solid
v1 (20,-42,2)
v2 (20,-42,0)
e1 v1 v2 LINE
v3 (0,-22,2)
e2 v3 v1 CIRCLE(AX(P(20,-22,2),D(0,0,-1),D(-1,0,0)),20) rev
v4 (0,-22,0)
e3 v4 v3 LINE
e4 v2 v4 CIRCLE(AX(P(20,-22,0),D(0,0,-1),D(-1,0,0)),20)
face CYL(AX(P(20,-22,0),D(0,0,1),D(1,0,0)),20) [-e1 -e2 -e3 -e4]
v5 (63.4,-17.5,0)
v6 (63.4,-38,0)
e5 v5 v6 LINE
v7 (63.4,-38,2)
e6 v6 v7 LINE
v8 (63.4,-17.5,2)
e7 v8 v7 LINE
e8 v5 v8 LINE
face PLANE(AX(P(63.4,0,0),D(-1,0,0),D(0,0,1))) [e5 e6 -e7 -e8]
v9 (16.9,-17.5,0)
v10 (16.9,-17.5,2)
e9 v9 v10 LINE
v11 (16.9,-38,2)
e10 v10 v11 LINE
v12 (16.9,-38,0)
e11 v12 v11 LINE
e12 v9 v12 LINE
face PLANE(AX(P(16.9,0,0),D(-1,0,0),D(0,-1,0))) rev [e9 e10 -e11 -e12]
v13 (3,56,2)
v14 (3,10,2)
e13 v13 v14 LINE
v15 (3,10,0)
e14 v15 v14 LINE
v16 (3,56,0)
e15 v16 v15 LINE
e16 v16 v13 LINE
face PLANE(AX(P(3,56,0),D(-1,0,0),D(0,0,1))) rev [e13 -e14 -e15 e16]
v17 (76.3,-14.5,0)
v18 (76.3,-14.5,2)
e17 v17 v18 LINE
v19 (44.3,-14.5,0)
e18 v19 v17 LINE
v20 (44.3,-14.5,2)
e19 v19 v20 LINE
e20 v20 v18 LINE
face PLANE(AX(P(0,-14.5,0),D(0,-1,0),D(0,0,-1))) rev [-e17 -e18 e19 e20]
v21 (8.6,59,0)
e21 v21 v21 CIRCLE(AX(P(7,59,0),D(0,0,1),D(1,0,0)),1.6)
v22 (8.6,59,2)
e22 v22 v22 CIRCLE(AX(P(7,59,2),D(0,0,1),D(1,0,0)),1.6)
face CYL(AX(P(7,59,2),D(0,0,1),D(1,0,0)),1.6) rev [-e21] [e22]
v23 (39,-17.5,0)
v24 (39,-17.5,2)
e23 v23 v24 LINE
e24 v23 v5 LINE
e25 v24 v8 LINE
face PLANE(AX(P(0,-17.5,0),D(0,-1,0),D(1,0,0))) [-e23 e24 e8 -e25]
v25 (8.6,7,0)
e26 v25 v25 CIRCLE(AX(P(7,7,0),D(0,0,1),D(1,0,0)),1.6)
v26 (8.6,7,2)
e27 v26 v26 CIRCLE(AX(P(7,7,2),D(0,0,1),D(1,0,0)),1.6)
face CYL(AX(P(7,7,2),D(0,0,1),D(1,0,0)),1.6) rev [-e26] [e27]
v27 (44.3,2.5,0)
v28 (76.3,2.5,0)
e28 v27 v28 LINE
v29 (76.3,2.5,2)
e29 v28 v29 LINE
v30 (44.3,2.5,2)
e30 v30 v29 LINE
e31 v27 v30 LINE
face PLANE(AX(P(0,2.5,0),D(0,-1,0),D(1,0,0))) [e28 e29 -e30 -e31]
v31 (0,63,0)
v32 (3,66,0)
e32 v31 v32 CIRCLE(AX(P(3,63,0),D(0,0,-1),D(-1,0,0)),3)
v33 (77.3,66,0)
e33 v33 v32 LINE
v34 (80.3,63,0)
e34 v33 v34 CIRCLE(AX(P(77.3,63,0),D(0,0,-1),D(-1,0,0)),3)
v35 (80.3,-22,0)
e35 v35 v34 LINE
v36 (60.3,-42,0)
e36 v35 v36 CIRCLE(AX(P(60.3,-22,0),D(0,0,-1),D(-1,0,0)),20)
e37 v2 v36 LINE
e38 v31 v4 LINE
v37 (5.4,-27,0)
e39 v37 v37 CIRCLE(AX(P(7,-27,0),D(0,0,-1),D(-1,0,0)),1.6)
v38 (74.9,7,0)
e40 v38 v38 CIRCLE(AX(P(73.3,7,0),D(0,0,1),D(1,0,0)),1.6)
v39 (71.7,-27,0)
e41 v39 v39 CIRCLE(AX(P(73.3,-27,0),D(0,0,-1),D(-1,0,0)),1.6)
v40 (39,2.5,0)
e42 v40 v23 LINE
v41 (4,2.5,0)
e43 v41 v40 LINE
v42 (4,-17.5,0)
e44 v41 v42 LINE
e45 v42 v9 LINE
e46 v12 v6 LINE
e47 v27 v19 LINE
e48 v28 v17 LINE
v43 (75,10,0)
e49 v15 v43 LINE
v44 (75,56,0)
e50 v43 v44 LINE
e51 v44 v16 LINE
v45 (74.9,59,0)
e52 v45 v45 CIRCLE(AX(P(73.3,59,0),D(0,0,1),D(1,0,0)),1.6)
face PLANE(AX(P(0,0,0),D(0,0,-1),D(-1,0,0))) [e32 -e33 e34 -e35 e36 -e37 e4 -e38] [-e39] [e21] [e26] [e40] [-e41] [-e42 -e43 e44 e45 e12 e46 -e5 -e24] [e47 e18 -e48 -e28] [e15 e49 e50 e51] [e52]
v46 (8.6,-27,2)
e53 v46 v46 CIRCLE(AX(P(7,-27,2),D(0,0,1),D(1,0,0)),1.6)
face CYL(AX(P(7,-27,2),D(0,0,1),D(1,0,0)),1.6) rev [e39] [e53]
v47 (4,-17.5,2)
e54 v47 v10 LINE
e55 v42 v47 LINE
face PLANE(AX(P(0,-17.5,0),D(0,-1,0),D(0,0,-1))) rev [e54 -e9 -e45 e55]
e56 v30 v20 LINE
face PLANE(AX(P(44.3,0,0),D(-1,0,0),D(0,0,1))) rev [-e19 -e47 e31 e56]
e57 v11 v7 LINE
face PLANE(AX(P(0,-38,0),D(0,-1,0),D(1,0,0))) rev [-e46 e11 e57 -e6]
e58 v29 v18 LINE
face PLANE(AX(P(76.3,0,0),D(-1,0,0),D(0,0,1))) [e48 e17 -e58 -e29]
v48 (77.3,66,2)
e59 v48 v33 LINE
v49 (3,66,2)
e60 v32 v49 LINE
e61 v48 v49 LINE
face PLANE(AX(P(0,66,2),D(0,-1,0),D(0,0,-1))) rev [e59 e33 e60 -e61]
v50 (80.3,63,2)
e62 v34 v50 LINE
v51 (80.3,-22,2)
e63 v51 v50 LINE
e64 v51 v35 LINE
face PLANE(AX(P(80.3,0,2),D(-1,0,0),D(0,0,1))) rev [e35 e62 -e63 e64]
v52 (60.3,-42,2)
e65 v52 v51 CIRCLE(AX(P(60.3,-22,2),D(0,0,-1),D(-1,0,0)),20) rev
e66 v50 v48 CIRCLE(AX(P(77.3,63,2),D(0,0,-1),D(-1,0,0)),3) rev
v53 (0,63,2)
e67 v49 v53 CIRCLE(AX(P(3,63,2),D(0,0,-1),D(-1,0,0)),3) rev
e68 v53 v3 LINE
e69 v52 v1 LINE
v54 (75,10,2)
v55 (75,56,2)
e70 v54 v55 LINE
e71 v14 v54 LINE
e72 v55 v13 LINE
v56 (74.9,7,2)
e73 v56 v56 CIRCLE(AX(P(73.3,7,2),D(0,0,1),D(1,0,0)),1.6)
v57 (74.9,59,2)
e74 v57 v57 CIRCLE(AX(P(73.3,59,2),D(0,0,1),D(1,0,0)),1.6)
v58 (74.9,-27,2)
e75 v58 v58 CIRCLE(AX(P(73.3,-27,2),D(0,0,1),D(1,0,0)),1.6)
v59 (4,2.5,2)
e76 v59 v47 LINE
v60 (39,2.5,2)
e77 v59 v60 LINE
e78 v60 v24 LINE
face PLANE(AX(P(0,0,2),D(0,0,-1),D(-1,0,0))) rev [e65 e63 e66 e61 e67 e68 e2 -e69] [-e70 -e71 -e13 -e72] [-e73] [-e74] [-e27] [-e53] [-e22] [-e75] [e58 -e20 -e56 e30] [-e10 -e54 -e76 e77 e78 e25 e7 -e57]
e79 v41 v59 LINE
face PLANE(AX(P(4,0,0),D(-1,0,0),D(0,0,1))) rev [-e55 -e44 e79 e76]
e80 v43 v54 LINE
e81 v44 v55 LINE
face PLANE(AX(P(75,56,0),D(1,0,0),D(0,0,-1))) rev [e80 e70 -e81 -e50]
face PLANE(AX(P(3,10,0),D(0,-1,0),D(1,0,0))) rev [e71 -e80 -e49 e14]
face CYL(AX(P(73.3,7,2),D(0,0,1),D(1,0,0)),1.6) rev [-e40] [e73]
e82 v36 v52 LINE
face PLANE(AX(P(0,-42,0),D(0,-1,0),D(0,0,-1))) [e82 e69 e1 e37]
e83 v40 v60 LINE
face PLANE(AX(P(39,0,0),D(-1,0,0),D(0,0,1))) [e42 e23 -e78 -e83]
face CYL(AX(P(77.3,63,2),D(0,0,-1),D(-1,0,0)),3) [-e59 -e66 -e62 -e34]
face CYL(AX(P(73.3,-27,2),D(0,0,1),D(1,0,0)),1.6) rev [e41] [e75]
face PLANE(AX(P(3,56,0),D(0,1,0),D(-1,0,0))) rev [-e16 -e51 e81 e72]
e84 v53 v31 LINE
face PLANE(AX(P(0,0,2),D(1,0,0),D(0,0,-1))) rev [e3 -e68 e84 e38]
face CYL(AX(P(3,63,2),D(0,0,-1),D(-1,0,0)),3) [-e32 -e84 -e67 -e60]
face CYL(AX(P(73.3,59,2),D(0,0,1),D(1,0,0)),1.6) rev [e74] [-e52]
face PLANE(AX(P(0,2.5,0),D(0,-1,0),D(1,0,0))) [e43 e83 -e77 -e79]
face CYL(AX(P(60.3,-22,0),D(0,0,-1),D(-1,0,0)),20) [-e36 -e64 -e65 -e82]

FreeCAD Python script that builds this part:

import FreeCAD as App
import Part
import Sketcher

V = App.Vector


def edges_at(feature, points):
    """Names of the edges that pass closest to the given points."""
    edges = feature.Shape.Edges
    near = lambda p: min(range(len(edges)), key=lambda i: edges[i].distToShape(Part.Vertex(*p))[0])
    return sorted({f"Edge{near(p) + 1}" for p in points})

doc = App.newDocument("Part")
body = doc.addObject("PartDesign::Body", "Body")

# Sketch on XY plane
sketch1 = body.newObject("Sketcher::SketchObject", "Sketch")
sketch1.AttachmentSupport = (doc.getObject("XY_Plane"), [""])
sketch1.MapMode = "FlatFace"
sketch1.addGeometry(Part.LineSegment(V(0, 66, 0), V(0, 0, 0)), False)
sketch1.addGeometry(Part.LineSegment(V(0, 0, 0), V(80, 0, 0)), False)
sketch1.addGeometry(Part.LineSegment(V(80, 0, 0), V(80, 66, 0)), False)
sketch1.addGeometry(Part.LineSegment(V(80, 66, 0), V(0, 66, 0)), False)
sketch1.addConstraint(Sketcher.Constraint("Coincident", 0, 2, 1, 1))
sketch1.addConstraint(Sketcher.Constraint("Coincident", 1, 2, 2, 1))
sketch1.addConstraint(Sketcher.Constraint("Coincident", 2, 2, 3, 1))
sketch1.addConstraint(Sketcher.Constraint("Coincident", 3, 2, 0, 1))
sketch1.addConstraint(Sketcher.Constraint("Vertical", 0))
sketch1.addConstraint(Sketcher.Constraint("Horizontal", 1))
sketch1.addConstraint(Sketcher.Constraint("Vertical", 2))
sketch1.addConstraint(Sketcher.Constraint("Horizontal", 3))
sketch1.addConstraint(Sketcher.Constraint("Coincident", 0, 2, -1, 1))
sketch1.addConstraint(Sketcher.Constraint("DistanceY", 0, 2, 0, 1, 66.0))
sketch1.addConstraint(Sketcher.Constraint("DistanceX", 1, 1, 1, 2, 80.3))
pad1 = body.newObject("PartDesign::Pad", "Pad")
pad1.Profile = sketch1
pad1.Length = 2

# Sketch on XY plane
sketch2 = body.newObject("Sketcher::SketchObject", "Sketch001")
sketch2.AttachmentSupport = (doc.getObject("XY_Plane"), [""])
sketch2.MapMode = "FlatFace"
sketch2.AttachmentOffset = App.Placement(V(0, 0, 2), App.Rotation())
sketch2.addGeometry(Part.Circle(V(7, 59, 0), V(0, 0, 1), 1.6), False)
sketch2.addGeometry(Part.Circle(V(73.3, 59, 0), V(0, 0, 1), 1.6), False)
sketch2.addGeometry(Part.Circle(V(73.3, 7, 0), V(0, 0, 1), 1.6), False)
sketch2.addGeometry(Part.Circle(V(7, 7, 0), V(0, 0, 1), 1.6), False)
sketch2.addConstraint(Sketcher.Constraint("Equal", 0, 1))
sketch2.addConstraint(Sketcher.Constraint("Equal", 1, 2))
sketch2.addConstraint(Sketcher.Constraint("Equal", 2, 3))
sketch2.addConstraint(Sketcher.Constraint("Horizontal", 0, 3, 1, 3))
sketch2.addConstraint(Sketcher.Constraint("Horizontal", 2, 3, 3, 3))
sketch2.addConstraint(Sketcher.Constraint("Vertical", 1, 3, 2, 3))
sketch2.addConstraint(Sketcher.Constraint("Vertical", 0, 3, 3, 3))
sketch2.addConstraint(Sketcher.Constraint("Diameter", 0, 3.2))
sketch2.addConstraint(Sketcher.Constraint("DistanceX", -1, 1, 0, 3, 7.0))
sketch2.addConstraint(Sketcher.Constraint("DistanceY", -1, 1, 0, 3, 59.0))
sketch2.addConstraint(Sketcher.Constraint("DistanceY", -1, 1, 2, 3, 7.0))
sketch2.addConstraint(Sketcher.Constraint("DistanceX", -1, 1, 1, 3, 73.3))
doc.recompute()
hole = body.newObject("PartDesign::Hole", "Hole")
hole.Profile = sketch2
hole.ThreadType = "None"
hole.Diameter = 3.2
hole.DepthType = "ThroughAll"
doc.recompute()

fillet = body.newObject("PartDesign::Fillet", "Fillet")
fillet.Base = (hole, edges_at(hole, [(0, 66, 1), (80.3, 66, 1)]))
fillet.Radius = 3

# Sketch on XZ plane
sketch3 = body.newObject("Sketcher::SketchObject", "Sketch002")
sketch3.AttachmentSupport = (doc.getObject("XZ_Plane"), [""])
sketch3.MapMode = "FlatFace"
sketch3.addGeometry(Part.LineSegment(V(0, 2, 0), V(0, 0, 0)), False)
sketch3.addGeometry(Part.LineSegment(V(0, 0, 0), V(80.3, 0, 0)), False)
sketch3.addGeometry(Part.LineSegment(V(80.3, 0, 0), V(80.3, 2, 0)), False)
sketch3.addGeometry(Part.LineSegment(V(80.3, 2, 0), V(0, 2, 0)), False)
sketch3.addConstraint(Sketcher.Constraint("Coincident", 0, 2, 1, 1))
sketch3.addConstraint(Sketcher.Constraint("Coincident", 1, 2, 2, 1))
sketch3.addConstraint(Sketcher.Constraint("Coincident", 2, 2, 3, 1))
sketch3.addConstraint(Sketcher.Constraint("Coincident", 3, 2, 0, 1))
sketch3.addConstraint(Sketcher.Constraint("Vertical", 0))
sketch3.addConstraint(Sketcher.Constraint("Horizontal", 1))
sketch3.addConstraint(Sketcher.Constraint("Vertical", 2))
sketch3.addConstraint(Sketcher.Constraint("Horizontal", 3))
sketch3.addConstraint(Sketcher.Constraint("Coincident", 0, 2, -1, 1))
sketch3.addConstraint(Sketcher.Constraint("DistanceY", 0, 2, 0, 1, 2.0))
sketch3.addConstraint(Sketcher.Constraint("DistanceX", 1, 1, 1, 2, 80.3))
pad2 = body.newObject("PartDesign::Pad", "Pad001")
pad2.Profile = sketch3
pad2.Length = 42
doc.recompute()

fillet2 = body.newObject("PartDesign::Fillet", "Fillet001")
fillet2.Base = (pad2, edges_at(pad2, [(0, -42, 1), (80.3, -42, 1)]))
fillet2.Radius = 20

# Sketch on XY plane
sketch4 = body.newObject("Sketcher::SketchObject", "Sketch003")
sketch4.AttachmentSupport = (doc.getObject("XY_Plane"), [""])
sketch4.MapMode = "FlatFace"
sketch4.AttachmentOffset = App.Placement(V(0, 0, 2), App.Rotation())
sketch4.addGeometry(Part.Circle(V(7, -27, 0), V(0, 0, 1), 1.6), False)
sketch4.addGeometry(Part.Circle(V(73.3, -27, 0), V(0, 0, 1), 1.6), False)
sketch4.addConstraint(Sketcher.Constraint("Equal", 0, 1))
sketch4.addConstraint(Sketcher.Constraint("Horizontal", 0, 3, 1, 3))
sketch4.addConstraint(Sketcher.Constraint("Diameter", 0, 3.2))
sketch4.addConstraint(Sketcher.Constraint("DistanceX", -1, 1, 0, 3, 7.0))
sketch4.addConstraint(Sketcher.Constraint("DistanceY", 0, 3, -1, 1, 27.0))
sketch4.addConstraint(Sketcher.Constraint("DistanceX", -1, 1, 1, 3, 73.3))
doc.recompute()
hole2 = body.newObject("PartDesign::Hole", "Hole001")
hole2.Profile = sketch4
hole2.ThreadType = "None"
hole2.Diameter = 3.2
hole2.DepthType = "Dimension"
hole2.Depth = 60
hole2.DrillPoint = "Angled"
hole2.DrillPointAngle = 118

# Sketch on XY plane
sketch5 = body.newObject("Sketcher::SketchObject", "Sketch004")
sketch5.AttachmentSupport = (doc.getObject("XY_Plane"), [""])
sketch5.MapMode = "FlatFace"
sketch5.AttachmentOffset = App.Placement(V(0, 0, 2), App.Rotation())
sketch5.addGeometry(Part.LineSegment(V(3, 56, 0), V(3, 10, 0)), False)
sketch5.addGeometry(Part.LineSegment(V(3, 10, 0), V(75, 10, 0)), False)
sketch5.addGeometry(Part.LineSegment(V(75, 10, 0), V(75, 56, 0)), False)
sketch5.addGeometry(Part.LineSegment(V(75, 56, 0), V(3, 56, 0)), False)
sketch5.addConstraint(Sketcher.Constraint("Coincident", 0, 2, 1, 1))
sketch5.addConstraint(Sketcher.Constraint("Coincident", 1, 2, 2, 1))
sketch5.addConstraint(Sketcher.Constraint("Coincident", 2, 2, 3, 1))
sketch5.addConstraint(Sketcher.Constraint("Coincident", 3, 2, 0, 1))
sketch5.addConstraint(Sketcher.Constraint("Vertical", 0))
sketch5.addConstraint(Sketcher.Constraint("Horizontal", 1))
sketch5.addConstraint(Sketcher.Constraint("Vertical", 2))
sketch5.addConstraint(Sketcher.Constraint("Horizontal", 3))
sketch5.addConstraint(Sketcher.Constraint("DistanceX", 1, 1, 1, 2, 72.0))
sketch5.addConstraint(Sketcher.Constraint("DistanceY", 0, 2, 0, 1, 46.0))
sketch5.addConstraint(Sketcher.Constraint("DistanceX", -1, 1, 0, 2, 3.0))
sketch5.addConstraint(Sketcher.Constraint("DistanceY", -1, 1, 0, 2, 10.0))
pocket1 = body.newObject("PartDesign::Pocket", "Pocket")
pocket1.Profile = sketch5
pocket1.Type = "ThroughAll"

# Sketch on XY plane
sketch6 = body.newObject("Sketcher::SketchObject", "Sketch005")
sketch6.AttachmentSupport = (doc.getObject("XY_Plane"), [""])
sketch6.MapMode = "FlatFace"
sketch6.AttachmentOffset = App.Placement(V(0, 0, 2), App.Rotation())
sketch6.addGeometry(Part.LineSegment(V(4, 2, 0), V(4, -18, 0)), False)
sketch6.addGeometry(Part.LineSegment(V(4, -18, 0), V(17, -18, 0)), False)
sketch6.addGeometry(Part.LineSegment(V(17, -18, 0), V(17, -38, 0)), False)
sketch6.addGeometry(Part.LineSegment(V(17, -38, 0), V(63, -38, 0)), False)
sketch6.addGeometry(Part.LineSegment(V(63, -38, 0), V(63, -18, 0)), False)
sketch6.addGeometry(Part.LineSegment(V(63, -18, 0), V(39, -18, 0)), False)
sketch6.addGeometry(Part.LineSegment(V(39, -18, 0), V(39, 2, 0)), False)
sketch6.addGeometry(Part.LineSegment(V(39, 2, 0), V(4, 2, 0)), False)
sketch6.addGeometry(Part.LineSegment(V(44, 2, 0), V(44, -14, 0)), False)
sketch6.addGeometry(Part.LineSegment(V(44, -14, 0), V(76, -14, 0)), False)
sketch6.addGeometry(Part.LineSegment(V(76, -14, 0), V(76, 2, 0)), False)
sketch6.addGeometry(Part.LineSegment(V(76, 2, 0), V(44, 2, 0)), False)
sketch6.addConstraint(Sketcher.Constraint("Coincident", 0, 2, 1, 1))
sketch6.addConstraint(Sketcher.Constraint("Coincident", 1, 2, 2, 1))
sketch6.addConstraint(Sketcher.Constraint("Coincident", 2, 2, 3, 1))
sketch6.addConstraint(Sketcher.Constraint("Coincident", 3, 2, 4, 1))
sketch6.addConstraint(Sketcher.Constraint("Coincident", 4, 2, 5, 1))
sketch6.addConstraint(Sketcher.Constraint("Coincident", 5, 2, 6, 1))
sketch6.addConstraint(Sketcher.Constraint("Coincident", 6, 2, 7, 1))
sketch6.addConstraint(Sketcher.Constraint("Coincident", 7, 2, 0, 1))
sketch6.addConstraint(Sketcher.Constraint("Coincident", 8, 2, 9, 1))
sketch6.addConstraint(Sketcher.Constraint("Coincident", 9, 2, 10, 1))
sketch6.addConstraint(Sketcher.Constraint("Coincident", 10, 2, 11, 1))
sketch6.addConstraint(Sketcher.Constraint("Coincident", 11, 2, 8, 1))
sketch6.addConstraint(Sketcher.Constraint("Vertical", 0))
sketch6.addConstraint(Sketcher.Constraint("Horizontal", 1))
sketch6.addConstraint(Sketcher.Constraint("Vertical", 2))
sketch6.addConstraint(Sketcher.Constraint("Horizontal", 3))
sketch6.addConstraint(Sketcher.Constraint("Vertical", 4))
sketch6.addConstraint(Sketcher.Constraint("Horizontal", 5))
sketch6.addConstraint(Sketcher.Constraint("Vertical", 6))
sketch6.addConstraint(Sketcher.Constraint("Horizontal", 7))
sketch6.addConstraint(Sketcher.Constraint("Vertical", 8))
sketch6.addConstraint(Sketcher.Constraint("Horizontal", 9))
sketch6.addConstraint(Sketcher.Constraint("Vertical", 10))
sketch6.addConstraint(Sketcher.Constraint("Horizontal", 11))
sketch6.addConstraint(Sketcher.Constraint("Horizontal", 1, 2, 4, 2))
sketch6.addConstraint(Sketcher.Constraint("Horizontal", 7, 2, 10, 2))
sketch6.addConstraint(Sketcher.Constraint("DistanceX", 7, 2, 7, 1, 35.0))
sketch6.addConstraint(Sketcher.Constraint("DistanceX", 9, 1, 9, 2, 32.0))
sketch6.addConstraint(Sketcher.Constraint("DistanceY", 0, 2, 0, 1, 20.0))
sketch6.addConstraint(Sketcher.Constraint("DistanceY", 8, 2, 8, 1, 17.0))
sketch6.addConstraint(Sketcher.Constraint("DistanceX", 1, 1, 1, 2, 12.9))
sketch6.addConstraint(Sketcher.Constraint("DistanceX", 3, 1, 3, 2, 46.5))
sketch6.addConstraint(Sketcher.Constraint("DistanceY", 2, 2, 2, 1, 20.5))
sketch6.addConstraint(Sketcher.Constraint("DistanceX", -1, 1, 0, 2, 4.0))
sketch6.addConstraint(Sketcher.Constraint("DistanceY", 2, 2, -1, 1, 38.0))
sketch6.addConstraint(Sketcher.Constraint("DistanceX", -1, 1, 8, 2, 44.3))
pocket2 = body.newObject("PartDesign::Pocket", "Pocket001")
pocket2.Profile = sketch6
pocket2.Type = "ThroughAll"

doc.recompute()
